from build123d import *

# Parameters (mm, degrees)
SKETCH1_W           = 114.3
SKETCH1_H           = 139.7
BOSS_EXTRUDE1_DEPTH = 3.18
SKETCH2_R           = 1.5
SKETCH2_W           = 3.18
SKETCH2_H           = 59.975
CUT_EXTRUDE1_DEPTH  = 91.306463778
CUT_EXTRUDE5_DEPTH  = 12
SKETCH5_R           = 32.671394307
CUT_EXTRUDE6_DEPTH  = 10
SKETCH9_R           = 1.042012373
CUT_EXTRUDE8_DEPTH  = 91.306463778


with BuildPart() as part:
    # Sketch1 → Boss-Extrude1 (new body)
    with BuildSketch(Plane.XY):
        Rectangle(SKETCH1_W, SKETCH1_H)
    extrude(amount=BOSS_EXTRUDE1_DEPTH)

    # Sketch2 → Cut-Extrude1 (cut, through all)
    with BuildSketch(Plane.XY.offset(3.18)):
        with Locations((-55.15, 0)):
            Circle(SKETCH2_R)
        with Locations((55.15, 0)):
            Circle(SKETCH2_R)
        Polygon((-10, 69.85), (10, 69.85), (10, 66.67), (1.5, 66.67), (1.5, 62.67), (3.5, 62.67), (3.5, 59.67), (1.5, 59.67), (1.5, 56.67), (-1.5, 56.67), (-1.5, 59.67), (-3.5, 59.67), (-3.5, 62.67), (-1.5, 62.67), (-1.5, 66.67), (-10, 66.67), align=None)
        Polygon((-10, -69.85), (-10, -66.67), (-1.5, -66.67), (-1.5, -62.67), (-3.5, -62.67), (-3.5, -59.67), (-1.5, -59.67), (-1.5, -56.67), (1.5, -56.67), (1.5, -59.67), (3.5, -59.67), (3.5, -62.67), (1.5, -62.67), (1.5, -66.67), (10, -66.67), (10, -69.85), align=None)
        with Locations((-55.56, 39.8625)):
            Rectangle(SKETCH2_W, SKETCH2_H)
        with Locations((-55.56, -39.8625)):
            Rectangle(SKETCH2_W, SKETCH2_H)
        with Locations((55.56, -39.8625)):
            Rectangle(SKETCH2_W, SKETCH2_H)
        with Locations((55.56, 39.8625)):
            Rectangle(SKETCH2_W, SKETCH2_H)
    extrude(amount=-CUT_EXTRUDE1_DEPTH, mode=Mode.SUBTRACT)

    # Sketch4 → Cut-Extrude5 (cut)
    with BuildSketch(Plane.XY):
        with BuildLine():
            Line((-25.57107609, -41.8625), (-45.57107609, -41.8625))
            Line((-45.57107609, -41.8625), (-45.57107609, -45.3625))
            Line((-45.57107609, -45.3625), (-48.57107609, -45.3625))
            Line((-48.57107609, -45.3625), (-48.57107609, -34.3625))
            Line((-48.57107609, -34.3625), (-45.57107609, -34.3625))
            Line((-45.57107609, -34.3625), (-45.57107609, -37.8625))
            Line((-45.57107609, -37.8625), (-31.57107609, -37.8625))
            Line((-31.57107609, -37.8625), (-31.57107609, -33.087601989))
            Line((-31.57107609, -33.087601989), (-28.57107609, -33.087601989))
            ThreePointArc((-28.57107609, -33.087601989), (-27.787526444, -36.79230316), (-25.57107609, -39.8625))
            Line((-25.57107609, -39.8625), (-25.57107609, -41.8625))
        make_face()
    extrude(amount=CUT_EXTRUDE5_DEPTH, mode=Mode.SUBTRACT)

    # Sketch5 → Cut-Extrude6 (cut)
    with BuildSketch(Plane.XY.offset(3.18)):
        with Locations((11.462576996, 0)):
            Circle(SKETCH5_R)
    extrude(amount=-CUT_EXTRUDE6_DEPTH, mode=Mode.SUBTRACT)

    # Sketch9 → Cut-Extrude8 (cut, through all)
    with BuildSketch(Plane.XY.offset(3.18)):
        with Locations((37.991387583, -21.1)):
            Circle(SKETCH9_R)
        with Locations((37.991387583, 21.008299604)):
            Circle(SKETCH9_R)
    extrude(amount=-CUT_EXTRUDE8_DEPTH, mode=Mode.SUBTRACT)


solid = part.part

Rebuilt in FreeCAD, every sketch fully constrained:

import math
import FreeCAD as App
import Part
import Sketcher
from FreeCAD import Vector
Q = App.Units.Quantity

doc = App.newDocument("Part")
body = doc.addObject("PartDesign::Body", "Body")

sketch1 = body.newObject("Sketcher::SketchObject", "Sketch")
sketch1.AttachmentSupport = (doc.getObject("XY_Plane"), [""])
sketch1.MapMode = "FlatFace"
sketch1.addGeometry(Part.LineSegment(Vector(-57, 70, 0), Vector(-57, -70, 0)), False)
sketch1.addGeometry(Part.LineSegment(Vector(-57, -70, 0), Vector(57, -70, 0)), False)
sketch1.addGeometry(Part.LineSegment(Vector(57, -70, 0), Vector(57, 70, 0)), False)
sketch1.addGeometry(Part.LineSegment(Vector(57, 70, 0), Vector(-57, 70, 0)), False)
sketch1.addConstraint(Sketcher.Constraint("Coincident", 0, 2, 1, 1))
sketch1.addConstraint(Sketcher.Constraint("Coincident", 1, 2, 2, 1))
sketch1.addConstraint(Sketcher.Constraint("Coincident", 2, 2, 3, 1))
sketch1.addConstraint(Sketcher.Constraint("Coincident", 3, 2, 0, 1))
sketch1.addConstraint(Sketcher.Constraint("Vertical", 0))
sketch1.addConstraint(Sketcher.Constraint("Horizontal", 1))
sketch1.addConstraint(Sketcher.Constraint("Vertical", 2))
sketch1.addConstraint(Sketcher.Constraint("Horizontal", 3))
sketch1.addConstraint(Sketcher.Constraint("Symmetric", 0, 2, 2, 2, -1, 1))
sketch1.addConstraint(Sketcher.Constraint("DistanceX", 1, 1, 1, 2, Q("114.3 mm")))
sketch1.addConstraint(Sketcher.Constraint("DistanceY", 0, 2, 0, 1, Q("139.7 mm")))
pad1 = body.newObject("PartDesign::Pad", "Pad")
pad1.Profile = sketch1
pad1.Length = 3.18

sketch2 = body.newObject("Sketcher::SketchObject", "Sketch001")
sketch2.AttachmentSupport = (doc.getObject("XY_Plane"), [""])
sketch2.MapMode = "FlatFace"
sketch2.AttachmentOffset = App.Placement(Vector(0, 0, 3.18), App.Rotation())
sketch2.addGeometry(Part.Circle(Vector(-55.1, 0, 0), Vector(0, 0, 1), 1.5), False)
sketch2.addGeometry(Part.Circle(Vector(55.1, 0, 0), Vector(0, 0, 1), 1.5), False)
sketch2.addGeometry(Part.LineSegment(Vector(10, 69.8, 0), Vector(-10, 69.8, 0)), False)
sketch2.addGeometry(Part.LineSegment(Vector(-10, 69.8, 0), Vector(-10, 66.7, 0)), False)
sketch2.addGeometry(Part.LineSegment(Vector(-10, 66.7, 0), Vector(-1.5, 66.7, 0)), False)
sketch2.addGeometry(Part.LineSegment(Vector(-1.5, 66.7, 0), Vector(-1.5, 62.7, 0)), False)
sketch2.addGeometry(Part.LineSegment(Vector(-1.5, 62.7, 0), Vector(-3.5, 62.7, 0)), False)
sketch2.addGeometry(Part.LineSegment(Vector(-3.5, 62.7, 0), Vector(-3.5, 59.7, 0)), False)
sketch2.addGeometry(Part.LineSegment(Vector(-3.5, 59.7, 0), Vector(-1.5, 59.7, 0)), False)
sketch2.addGeometry(Part.LineSegment(Vector(-1.5, 59.7, 0), Vector(-1.5, 56.7, 0)), False)
sketch2.addGeometry(Part.LineSegment(Vector(-1.5, 56.7, 0), Vector(1.5, 56.7, 0)), False)
sketch2.addGeometry(Part.LineSegment(Vector(1.5, 56.7, 0), Vector(1.5, 59.7, 0)), False)
sketch2.addGeometry(Part.LineSegment(Vector(1.5, 59.7, 0), Vector(3.5, 59.7, 0)), False)
sketch2.addGeometry(Part.LineSegment(Vector(3.5, 59.7, 0), Vector(3.5, 62.7, 0)), False)
sketch2.addGeometry(Part.LineSegment(Vector(3.5, 62.7, 0), Vector(1.5, 62.7, 0)), False)
sketch2.addGeometry(Part.LineSegment(Vector(1.5, 62.7, 0), Vector(1.5, 66.7, 0)), False)
sketch2.addGeometry(Part.LineSegment(Vector(1.5, 66.7, 0), Vector(10, 66.7, 0)), False)
sketch2.addGeometry(Part.LineSegment(Vector(10, 66.7, 0), Vector(10, 69.8, 0)), False)
sketch2.addGeometry(Part.LineSegment(Vector(-10, -66.7, 0), Vector(-10, -69.8, 0)), False)
sketch2.addGeometry(Part.LineSegment(Vector(-10, -69.8, 0), Vector(10, -69.8, 0)), False)
sketch2.addGeometry(Part.LineSegment(Vector(10, -69.8, 0), Vector(10, -66.7, 0)), False)
sketch2.addGeometry(Part.LineSegment(Vector(10, -66.7, 0), Vector(1.5, -66.7, 0)), False)
sketch2.addGeometry(Part.LineSegment(Vector(1.5, -66.7, 0), Vector(1.5, -62.7, 0)), False)
sketch2.addGeometry(Part.LineSegment(Vector(1.5, -62.7, 0), Vector(3.5, -62.7, 0)), False)
sketch2.addGeometry(Part.LineSegment(Vector(3.5, -62.7, 0), Vector(3.5, -59.7, 0)), False)
sketch2.addGeometry(Part.LineSegment(Vector(3.5, -59.7, 0), Vector(1.5, -59.7, 0)), False)
sketch2.addGeometry(Part.LineSegment(Vector(1.5, -59.7, 0), Vector(1.5, -56.7, 0)), False)
sketch2.addGeometry(Part.LineSegment(Vector(1.5, -56.7, 0), Vector(-1.5, -56.7, 0)), False)
sketch2.addGeometry(Part.LineSegment(Vector(-1.5, -56.7, 0), Vector(-1.5, -59.7, 0)), False)
sketch2.addGeometry(Part.LineSegment(Vector(-1.5, -59.7, 0), Vector(-3.5, -59.7, 0)), False)
sketch2.addGeometry(Part.LineSegment(Vector(-3.5, -59.7, 0), Vector(-3.5, -62.7, 0)), False)
sketch2.addGeometry(Part.LineSegment(Vector(-3.5, -62.7, 0), Vector(-1.5, -62.7, 0)), False)
sketch2.addGeometry(Part.LineSegment(Vector(-1.5, -62.7, 0), Vector(-1.5, -66.7, 0)), False)
sketch2.addGeometry(Part.LineSegment(Vector(-1.5, -66.7, 0), Vector(-10, -66.7, 0)), False)
sketch2.addGeometry(Part.LineSegment(Vector(-57.1, 69.8, 0), Vector(-57.1, 9.9, 0)), False)
sketch2.addGeometry(Part.LineSegment(Vector(-57.1, 9.9, 0), Vector(-54, 9.9, 0)), False)
sketch2.addGeometry(Part.LineSegment(Vector(-54, 9.9, 0), Vector(-54, 69.8, 0)), False)
sketch2.addGeometry(Part.LineSegment(Vector(-54, 69.8, 0), Vector(-57.1, 69.8, 0)), False)
sketch2.addGeometry(Part.LineSegment(Vector(-57.1, -9.9, 0), Vector(-57.1, -69.8, 0)), False)
sketch2.addGeometry(Part.LineSegment(Vector(-57.1, -69.8, 0), Vector(-54, -69.8, 0)), False)
sketch2.addGeometry(Part.LineSegment(Vector(-54, -69.8, 0), Vector(-54, -9.9, 0)), False)
sketch2.addGeometry(Part.LineSegment(Vector(-54, -9.9, 0), Vector(-57.1, -9.9, 0)), False)
sketch2.addGeometry(Part.LineSegment(Vector(54, -9.9, 0), Vector(54, -69.8, 0)), False)
sketch2.addGeometry(Part.LineSegment(Vector(54, -69.8, 0), Vector(57.1, -69.8, 0)), False)
sketch2.addGeometry(Part.LineSegment(Vector(57.1, -69.8, 0), Vector(57.1, -9.9, 0)), False)
sketch2.addGeometry(Part.LineSegment(Vector(57.1, -9.9, 0), Vector(54, -9.9, 0)), False)
sketch2.addGeometry(Part.LineSegment(Vector(54, 69.8, 0), Vector(54, 9.9, 0)), False)
sketch2.addGeometry(Part.LineSegment(Vector(54, 9.9, 0), Vector(57.1, 9.9, 0)), False)
sketch2.addGeometry(Part.LineSegment(Vector(57.1, 9.9, 0), Vector(57.1, 69.8, 0)), False)
sketch2.addGeometry(Part.LineSegment(Vector(57.1, 69.8, 0), Vector(54, 69.8, 0)), False)
sketch2.addConstraint(Sketcher.Constraint("Coincident", 2, 2, 3, 1))
sketch2.addConstraint(Sketcher.Constraint("Coincident", 3, 2, 4, 1))
sketch2.addConstraint(Sketcher.Constraint("Coincident", 4, 2, 5, 1))
sketch2.addConstraint(Sketcher.Constraint("Coincident", 5, 2, 6, 1))
sketch2.addConstraint(Sketcher.Constraint("Coincident", 6, 2, 7, 1))
sketch2.addConstraint(Sketcher.Constraint("Coincident", 7, 2, 8, 1))
sketch2.addConstraint(Sketcher.Constraint("Coincident", 8, 2, 9, 1))
sketch2.addConstraint(Sketcher.Constraint("Coincident", 9, 2, 10, 1))
sketch2.addConstraint(Sketcher.Constraint("Coincident", 10, 2, 11, 1))
sketch2.addConstraint(Sketcher.Constraint("Coincident", 11, 2, 12, 1))
sketch2.addConstraint(Sketcher.Constraint("Coincident", 12, 2, 13, 1))
sketch2.addConstraint(Sketcher.Constraint("Coincident", 13, 2, 14, 1))
sketch2.addConstraint(Sketcher.Constraint("Coincident", 14, 2, 15, 1))
sketch2.addConstraint(Sketcher.Constraint("Coincident", 15, 2, 16, 1))
sketch2.addConstraint(Sketcher.Constraint("Coincident", 16, 2, 17, 1))
sketch2.addConstraint(Sketcher.Constraint("Coincident", 17, 2, 2, 1))
sketch2.addConstraint(Sketcher.Constraint("Coincident", 18, 2, 19, 1))
sketch2.addConstraint(Sketcher.Constraint("Coincident", 19, 2, 20, 1))
sketch2.addConstraint(Sketcher.Constraint("Coincident", 20, 2, 21, 1))
sketch2.addConstraint(Sketcher.Constraint("Coincident", 21, 2, 22, 1))
sketch2.addConstraint(Sketcher.Constraint("Coincident", 22, 2, 23, 1))
sketch2.addConstraint(Sketcher.Constraint("Coincident", 23, 2, 24, 1))
sketch2.addConstraint(Sketcher.Constraint("Coincident", 24, 2, 25, 1))
sketch2.addConstraint(Sketcher.Constraint("Coincident", 25, 2, 26, 1))
sketch2.addConstraint(Sketcher.Constraint("Coincident", 26, 2, 27, 1))
sketch2.addConstraint(Sketcher.Constraint("Coincident", 27, 2, 28, 1))
sketch2.addConstraint(Sketcher.Constraint("Coincident", 28, 2, 29, 1))
sketch2.addConstraint(Sketcher.Constraint("Coincident", 29, 2, 30, 1))
sketch2.addConstraint(Sketcher.Constraint("Coincident", 30, 2, 31, 1))
sketch2.addConstraint(Sketcher.Constraint("Coincident", 31, 2, 32, 1))
sketch2.addConstraint(Sketcher.Constraint("Coincident", 32, 2, 33, 1))
sketch2.addConstraint(Sketcher.Constraint("Coincident", 33, 2, 18, 1))
sketch2.addConstraint(Sketcher.Constraint("Coincident", 34, 2, 35, 1))
sketch2.addConstraint(Sketcher.Constraint("Coincident", 35, 2, 36, 1))
sketch2.addConstraint(Sketcher.Constraint("Coincident", 36, 2, 37, 1))
sketch2.addConstraint(Sketcher.Constraint("Coincident", 37, 2, 34, 1))
sketch2.addConstraint(Sketcher.Constraint("Coincident", 38, 2, 39, 1))
sketch2.addConstraint(Sketcher.Constraint("Coincident", 39, 2, 40, 1))
sketch2.addConstraint(Sketcher.Constraint("Coincident", 40, 2, 41, 1))
sketch2.addConstraint(Sketcher.Constraint("Coincident", 41, 2, 38, 1))
sketch2.addConstraint(Sketcher.Constraint("Coincident", 42, 2, 43, 1))
sketch2.addConstraint(Sketcher.Constraint("Coincident", 43, 2, 44, 1))
sketch2.addConstraint(Sketcher.Constraint("Coincident", 44, 2, 45, 1))
sketch2.addConstraint(Sketcher.Constraint("Coincident", 45, 2, 42, 1))
sketch2.addConstraint(Sketcher.Constraint("Coincident", 46, 2, 47, 1))
sketch2.addConstraint(Sketcher.Constraint("Coincident", 47, 2, 48, 1))
sketch2.addConstraint(Sketcher.Constraint("Coincident", 48, 2, 49, 1))
sketch2.addConstraint(Sketcher.Constraint("Coincident", 49, 2, 46, 1))
sketch2.addConstraint(Sketcher.Constraint("Horizontal", 2))
sketch2.addConstraint(Sketcher.Constraint("Vertical", 3))
sketch2.addConstraint(Sketcher.Constraint("Horizontal", 4))
sketch2.addConstraint(Sketcher.Constraint("Vertical", 5))
sketch2.addConstraint(Sketcher.Constraint("Horizontal", 6))
sketch2.addConstraint(Sketcher.Constraint("Vertical", 7))
sketch2.addConstraint(Sketcher.Constraint("Horizontal", 8))
sketch2.addConstraint(Sketcher.Constraint("Vertical", 9))
sketch2.addConstraint(Sketcher.Constraint("Horizontal", 10))
sketch2.addConstraint(Sketcher.Constraint("Vertical", 11))
sketch2.addConstraint(Sketcher.Constraint("Horizontal", 12))
sketch2.addConstraint(Sketcher.Constraint("Vertical", 13))
sketch2.addConstraint(Sketcher.Constraint("Horizontal", 14))
sketch2.addConstraint(Sketcher.Constraint("Vertical", 15))
sketch2.addConstraint(Sketcher.Constraint("Horizontal", 16))
sketch2.addConstraint(Sketcher.Constraint("Vertical", 17))
sketch2.addConstraint(Sketcher.Constraint("Vertical", 18))
sketch2.addConstraint(Sketcher.Constraint("Horizontal", 19))
sketch2.addConstraint(Sketcher.Constraint("Vertical", 20))
sketch2.addConstraint(Sketcher.Constraint("Horizontal", 21))
sketch2.addConstraint(Sketcher.Constraint("Vertical", 22))
sketch2.addConstraint(Sketcher.Constraint("Horizontal", 23))
sketch2.addConstraint(Sketcher.Constraint("Vertical", 24))
sketch2.addConstraint(Sketcher.Constraint("Horizontal", 25))
sketch2.addConstraint(Sketcher.Constraint("Vertical", 26))
sketch2.addConstraint(Sketcher.Constraint("Horizontal", 27))
sketch2.addConstraint(Sketcher.Constraint("Vertical", 28))
sketch2.addConstraint(Sketcher.Constraint("Horizontal", 29))
sketch2.addConstraint(Sketcher.Constraint("Vertical", 30))
sketch2.addConstraint(Sketcher.Constraint("Horizontal", 31))
sketch2.addConstraint(Sketcher.Constraint("Vertical", 32))
sketch2.addConstraint(Sketcher.Constraint("Horizontal", 33))
sketch2.addConstraint(Sketcher.Constraint("Vertical", 34))
sketch2.addConstraint(Sketcher.Constraint("Horizontal", 35))
sketch2.addConstraint(Sketcher.Constraint("Vertical", 36))
sketch2.addConstraint(Sketcher.Constraint("Horizontal", 37))
sketch2.addConstraint(Sketcher.Constraint("Vertical", 38))
sketch2.addConstraint(Sketcher.Constraint("Horizontal", 39))
sketch2.addConstraint(Sketcher.Constraint("Vertical", 40))
sketch2.addConstraint(Sketcher.Constraint("Horizontal", 41))
sketch2.addConstraint(Sketcher.Constraint("Vertical", 42))
sketch2.addConstraint(Sketcher.Constraint("Horizontal", 43))
sketch2.addConstraint(Sketcher.Constraint("Vertical", 44))
sketch2.addConstraint(Sketcher.Constraint("Horizontal", 45))
sketch2.addConstraint(Sketcher.Constraint("Vertical", 46))
sketch2.addConstraint(Sketcher.Constraint("Horizontal", 47))
sketch2.addConstraint(Sketcher.Constraint("Vertical", 48))
sketch2.addConstraint(Sketcher.Constraint("Horizontal", 49))
sketch2.addConstraint(Sketcher.Constraint("Equal", 0, 1))
sketch2.addConstraint(Sketcher.Constraint("Symmetric", 0, 3, 1, 3, -1, 1))
sketch2.addConstraint(Sketcher.Constraint("Symmetric", 17, 2, 18, 2, -1, 1))
sketch2.addConstraint(Sketcher.Constraint("Symmetric", 3, 2, 20, 2, -1, 1))
sketch2.addConstraint(Sketcher.Constraint("Symmetric", 5, 2, 22, 2, -1, 1))
sketch2.addConstraint(Sketcher.Constraint("Symmetric", 7, 2, 24, 2, -1, 1))
sketch2.addConstraint(Sketcher.Constraint("Symmetric", 9, 2, 26, 2, -1, 1))
sketch2.addConstraint(Sketcher.Constraint("Symmetric", 11, 2, 28, 2, -1, 1))
sketch2.addConstraint(Sketcher.Constraint("Symmetric", 13, 2, 30, 2, -1, 1))
sketch2.addConstraint(Sketcher.Constraint("Symmetric", 15, 2, 32, 2, -1, 1))
sketch2.addConstraint(Sketcher.Constraint("Symmetric", 36, 2, 42, 2, -1, 1))
sketch2.addConstraint(Sketcher.Constraint("Symmetric", 34, 2, 44, 2, -1, 1))
sketch2.addConstraint(Sketcher.Constraint("Symmetric", 40, 2, 46, 2, -1, 1))
sketch2.addConstraint(Sketcher.Constraint("Symmetric", 38, 2, 48, 2, -1, 1))
sketch2.addConstraint(Sketcher.Constraint("Symmetric", 8, 2, 11, 2, -2))
sketch2.addConstraint(Sketcher.Constraint("Symmetric", 6, 2, 13, 2, -2))
sketch2.addConstraint(Sketcher.Constraint("Symmetric", 4, 2, 15, 2, -2))
sketch2.addConstraint(Sketcher.Constraint("Symmetric", 39, 2, 42, 2, -2))
sketch2.addConstraint(Sketcher.Constraint("Symmetric", 41, 2, 44, 2, -2))
sketch2.addConstraint(Sketcher.Constraint("PointOnObject", 0, 3, -1))
sketch2.addConstraint(Sketcher.Constraint("Horizontal", 17, 2, 36, 2))
sketch2.addConstraint(Sketcher.Constraint("Vertical", 5, 2, 8, 2))
sketch2.addConstraint(Sketcher.Constraint("Vertical", 3, 2, 18, 2))
sketch2.addConstraint(Sketcher.Constraint("Equal", 49, 3))
sketch2.addConstraint(Sketcher.Constraint("Equal", 27, 7))
sketch2.addConstraint(Sketcher.Constraint("Equal", 7, 9))
sketch2.addConstraint(Sketcher.Constraint("Diameter", 0, Q("3 mm")))
sketch2.addConstraint(Sketcher.Constraint("DistanceX", 2, 2, 2, 1, Q("20 mm")))
sketch2.addConstraint(Sketcher.Constraint("DistanceX", 6, 2, 6, 1, Q("2 mm")))
sketch2.addConstraint(Sketcher.Constraint("DistanceX", 10, 1, 10, 2, Q("3 mm")))
sketch2.addConstraint(Sketcher.Constraint("DistanceY", 5, 2, 5, 1, Q("4 mm")))
sketch2.addConstraint(Sketcher.Constraint("DistanceX", 34, 2, 0, 3, Q("2 mm")))
sketch2.addConstraint(Sketcher.Constraint("DistanceX", 35, 1, 35, 2, Q("3.18 mm")))
sketch2.addConstraint(Sketcher.Constraint("DistanceX", 0, 3, 1, 3, Q("110.3 mm")))
sketch2.addConstraint(Sketcher.Constraint("DistanceY", 34, 2, 34, 1, Q("59.975 mm")))
sketch2.addConstraint(Sketcher.Constraint("DistanceY", -1, 1, 2, 2, Q("69.85 mm")))
pocket1 = body.newObject("PartDesign::Pocket", "Pocket")
pocket1.Profile = sketch2
pocket1.Type = "ThroughAll"

sketch3 = body.newObject("Sketcher::SketchObject", "Sketch002")
sketch3.AttachmentSupport = (doc.getObject("XY_Plane"), [""])
sketch3.MapMode = "FlatFace"
sketch3.addGeometry(Part.LineSegment(Vector(-45.6, -41.9, 0), Vector(-25.6, -41.9, 0)), False)
sketch3.addGeometry(Part.LineSegment(Vector(-25.6, -41.9, 0), Vector(-25.6, -39.9, 0)), False)
sketch3.addGeometry(Part.ArcOfCircle(Part.Circle(Vector(-19.4, -33.1, 0), Vector(0, 0, 1), 9.1), math.radians(-180), math.radians(-132)), False)
sketch3.addGeometry(Part.LineSegment(Vector(-28.6, -33.1, 0), Vector(-31.6, -33.1, 0)), False)
sketch3.addGeometry(Part.LineSegment(Vector(-31.6, -33.1, 0), Vector(-31.6, -37.9, 0)), False)
sketch3.addGeometry(Part.LineSegment(Vector(-31.6, -37.9, 0), Vector(-45.6, -37.9, 0)), False)
sketch3.addGeometry(Part.LineSegment(Vector(-45.6, -37.9, 0), Vector(-45.6, -34.4, 0)), False)
sketch3.addGeometry(Part.LineSegment(Vector(-45.6, -34.4, 0), Vector(-48.6, -34.4, 0)), False)
sketch3.addGeometry(Part.LineSegment(Vector(-48.6, -34.4, 0), Vector(-48.6, -45.4, 0)), False)
sketch3.addGeometry(Part.LineSegment(Vector(-48.6, -45.4, 0), Vector(-45.6, -45.4, 0)), False)
sketch3.addGeometry(Part.LineSegment(Vector(-45.6, -45.4, 0), Vector(-45.6, -41.9, 0)), False)
sketch3.addConstraint(Sketcher.Constraint("Coincident", 0, 2, 1, 1))
sketch3.addConstraint(Sketcher.Constraint("Coincident", 1, 2, 2, 2))
sketch3.addConstraint(Sketcher.Constraint("Coincident", 2, 1, 3, 1))
sketch3.addConstraint(Sketcher.Constraint("Coincident", 3, 2, 4, 1))
sketch3.addConstraint(Sketcher.Constraint("Coincident", 4, 2, 5, 1))
sketch3.addConstraint(Sketcher.Constraint("Coincident", 5, 2, 6, 1))
sketch3.addConstraint(Sketcher.Constraint("Coincident", 6, 2, 7, 1))
sketch3.addConstraint(Sketcher.Constraint("Coincident", 7, 2, 8, 1))
sketch3.addConstraint(Sketcher.Constraint("Coincident", 8, 2, 9, 1))
sketch3.addConstraint(Sketcher.Constraint("Coincident", 9, 2, 10, 1))
sketch3.addConstraint(Sketcher.Constraint("Coincident", 10, 2, 0, 1))
sketch3.addConstraint(Sketcher.Constraint("Horizontal", 0))
sketch3.addConstraint(Sketcher.Constraint("Vertical", 1))
sketch3.addConstraint(Sketcher.Constraint("Horizontal", 3))
sketch3.addConstraint(Sketcher.Constraint("Vertical", 4))
sketch3.addConstraint(Sketcher.Constraint("Horizontal", 5))
sketch3.addConstraint(Sketcher.Constraint("Vertical", 6))
sketch3.addConstraint(Sketcher.Constraint("Horizontal", 7))
sketch3.addConstraint(Sketcher.Constraint("Vertical", 8))
sketch3.addConstraint(Sketcher.Constraint("Horizontal", 9))
sketch3.addConstraint(Sketcher.Constraint("Vertical", 10))
sketch3.addConstraint(Sketcher.Constraint("Vertical", 6, 2, 9, 2))
sketch3.addConstraint(Sketcher.Constraint("Equal", 3, 7))
sketch3.addConstraint(Sketcher.Constraint("Equal", 6, 10))
sketch3.addConstraint(Sketcher.Constraint("DistanceX", 0, 1, 0, 2, Q("20 mm")))
sketch3.addConstraint(Sketcher.Constraint("DistanceX", 3, 2, 3, 1, Q("3 mm")))
sketch3.addConstraint(Sketcher.Constraint("DistanceX", 5, 2, 5, 1, Q("14 mm")))
sketch3.addConstraint(Sketcher.Constraint("DistanceY", 1, 1, 1, 2, Q("2 mm")))
sketch3.addConstraint(Sketcher.Constraint("DistanceY", 8, 2, 8, 1, Q("11 mm")))
sketch3.addConstraint(Sketcher.Constraint("DistanceY", 6, 1, 6, 2, Q("3.5 mm")))
sketch3.addConstraint(Sketcher.Constraint("DistanceY", 4, 2, 4, 1, Q("4.774898 mm")))
sketch3.addConstraint(Sketcher.Constraint("Radius", 2, Q("9.149874 mm")))
sketch3.addConstraint(Sketcher.Constraint("DistanceY", 2, 3, -1, 1, Q("33.087602 mm")))
sketch3.addConstraint(Sketcher.Constraint("DistanceX", 2, 3, -1, 1, Q("19.421202 mm")))
pocket2 = body.newObject("PartDesign::Pocket", "Pocket001")
pocket2.Profile = sketch3
pocket2.Length = 12
pocket2.Reversed = True

sketch4 = body.newObject("Sketcher::SketchObject", "Sketch003")
sketch4.AttachmentSupport = (doc.getObject("XY_Plane"), [""])
sketch4.MapMode = "FlatFace"
sketch4.AttachmentOffset = App.Placement(Vector(0, 0, 3.18), App.Rotation())
sketch4.addGeometry(Part.Circle(Vector(11, 0, 0), Vector(0, 0, 1), 33), False)
sketch4.addConstraint(Sketcher.Constraint("PointOnObject", 0, 3, -1))
sketch4.addConstraint(Sketcher.Constraint("Diameter", 0, Q("65.342789 mm")))
sketch4.addConstraint(Sketcher.Constraint("DistanceX", -1, 1, 0, 3, Q("11.462577 mm")))
pocket3 = body.newObject("PartDesign::Pocket", "Pocket002")
pocket3.Profile = sketch4
pocket3.Length = 10

sketch5 = body.newObject("Sketcher::SketchObject", "Sketch004")
sketch5.AttachmentSupport = (doc.getObject("XY_Plane"), [""])
sketch5.MapMode = "FlatFace"
sketch5.AttachmentOffset = App.Placement(Vector(0, 0, 3.18), App.Rotation())
sketch5.addGeometry(Part.Circle(Vector(38, -21.1, 0), Vector(0, 0, 1), 1), False)
sketch5.addGeometry(Part.Circle(Vector(38, 21, 0), Vector(0, 0, 1), 1), False)
sketch5.addConstraint(Sketcher.Constraint("Equal", 0, 1))
sketch5.addConstraint(Sketcher.Constraint("Vertical", 0, 3, 1, 3))
sketch5.addConstraint(Sketcher.Constraint("DistanceY", 0, 3, -1, 1, Q("21.1 mm")))
sketch5.addConstraint(Sketcher.Constraint("Diameter", 0, Q("2.084025 mm")))
sketch5.addConstraint(Sketcher.Constraint("DistanceY", -1, 1, 1, 3, Q("21.0083 mm")))
sketch5.addConstraint(Sketcher.Constraint("DistanceX", -1, 1, 0, 3, Q("37.991388 mm")))
pocket4 = body.newObject("PartDesign::Pocket", "Pocket003")
pocket4.Profile = sketch5
pocket4.Type = "ThroughAll"

doc.recompute()
